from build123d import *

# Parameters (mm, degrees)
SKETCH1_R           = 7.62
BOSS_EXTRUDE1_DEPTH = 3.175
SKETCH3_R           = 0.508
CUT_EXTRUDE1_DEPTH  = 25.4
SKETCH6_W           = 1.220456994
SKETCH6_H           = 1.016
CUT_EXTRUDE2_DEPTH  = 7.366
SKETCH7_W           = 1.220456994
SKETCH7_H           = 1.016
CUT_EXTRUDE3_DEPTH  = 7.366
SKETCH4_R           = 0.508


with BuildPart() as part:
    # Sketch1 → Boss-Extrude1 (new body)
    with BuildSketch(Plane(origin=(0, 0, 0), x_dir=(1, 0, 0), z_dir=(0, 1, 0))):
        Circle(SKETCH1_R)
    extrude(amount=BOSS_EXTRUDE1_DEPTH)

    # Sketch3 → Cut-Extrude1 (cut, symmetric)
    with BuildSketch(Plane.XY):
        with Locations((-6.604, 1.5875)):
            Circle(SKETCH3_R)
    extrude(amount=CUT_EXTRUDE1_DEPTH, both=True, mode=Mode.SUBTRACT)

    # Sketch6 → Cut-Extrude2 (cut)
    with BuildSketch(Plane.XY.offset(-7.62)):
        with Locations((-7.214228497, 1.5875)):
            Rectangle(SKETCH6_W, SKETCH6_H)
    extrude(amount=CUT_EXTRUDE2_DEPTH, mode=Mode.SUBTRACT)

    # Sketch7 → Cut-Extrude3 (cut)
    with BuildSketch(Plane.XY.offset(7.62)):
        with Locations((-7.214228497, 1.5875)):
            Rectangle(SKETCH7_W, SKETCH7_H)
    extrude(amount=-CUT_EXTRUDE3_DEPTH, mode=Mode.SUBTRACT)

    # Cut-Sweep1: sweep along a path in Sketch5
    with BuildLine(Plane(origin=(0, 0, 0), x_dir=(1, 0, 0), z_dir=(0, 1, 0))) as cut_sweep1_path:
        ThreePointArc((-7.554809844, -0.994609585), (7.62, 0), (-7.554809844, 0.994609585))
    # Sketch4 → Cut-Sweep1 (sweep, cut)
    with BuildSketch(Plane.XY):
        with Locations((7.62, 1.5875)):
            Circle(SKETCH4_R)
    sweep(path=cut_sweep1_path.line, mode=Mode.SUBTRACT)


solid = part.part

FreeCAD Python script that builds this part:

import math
import FreeCAD as App
import Part
import Sketcher
Q = App.Units.Quantity

doc = App.newDocument("Part")
params = doc.addObject("Spreadsheet::Sheet", "Params")
for row, (alias, value) in enumerate([
    ("sketch1_diameter", "0.6 in"),
    ("pad1_length", "0.125 in"),
    ("sketch2_diameter", "0.04 in"),
    ("pocket1_length", "2 in"),
    ("sketch3_height", "0.04 in"),
    ("pocket2_length", "0.29 in"),
    ("sketch4_height", "0.04 in"),
    ("pocket3_length", "0.29 in"),
    ("sketch5_diameter", "0.04 in"),
    ("sketch6_radius", "0.3 in"),
], start=1):
    params.set(f"A{row}", alias)
    params.set(f"B{row}", "=" + value)
    params.setAlias(f"B{row}", alias)

body = doc.addObject("PartDesign::Body", "Body")

sketch1 = doc.addObject("Sketcher::SketchObject", "Sketch")
body.addObject(sketch1)
sketch1.AttachmentSupport = (doc.XZ_Plane, [""])
sketch1.MapMode = "FlatFace"
sketch1.addGeometry(Part.Circle(App.Vector(0, 0, 0), App.Vector(0, 0, 1), 8), False)
sketch1.addConstraint(Sketcher.Constraint("Coincident", 0, 3, -1, 1))
sketch1.addConstraint(Sketcher.Constraint("Diameter", 0, Q("0.6 in")))
sketch1.setExpression("Constraints[1]", "Params.sketch1_diameter")
pad1 = doc.addObject("PartDesign::Pad", "Pad")
body.addObject(pad1)
pad1.Profile = sketch1
pad1.setExpression("Length", "Params.pad1_length")
pad1.Reversed = True

sketch2 = doc.addObject("Sketcher::SketchObject", "Sketch001")
body.addObject(sketch2)
sketch2.AttachmentSupport = (doc.XY_Plane, [""])
sketch2.MapMode = "FlatFace"
sketch2.addGeometry(Part.Circle(App.Vector(-6.6, 1.6, 0), App.Vector(0, 0, 1), 0.5), False)
sketch2.addConstraint(Sketcher.Constraint("Diameter", 0, Q("0.04 in")))
sketch2.addConstraint(Sketcher.Constraint("DistanceX", 0, 3, -1, 1, Q("0.26 in")))
sketch2.addConstraint(Sketcher.Constraint("DistanceY", -1, 1, 0, 3, Q("0.0625 in")))
sketch2.setExpression("Constraints[0]", "Params.sketch2_diameter")
pocket1 = doc.addObject("PartDesign::Pocket", "Pocket")
body.addObject(pocket1)
pocket1.Profile = sketch2
pocket1.setExpression("Length", "Params.pocket1_length")
pocket1.Midplane = True

sketch3 = doc.addObject("Sketcher::SketchObject", "Sketch002")
body.addObject(sketch3)
sketch3.AttachmentSupport = (doc.XY_Plane, [""])
sketch3.MapMode = "FlatFace"
sketch3.AttachmentOffset = App.Placement(App.Vector(0, 0, -0.3 * 25.4), App.Rotation())
sketch3.addGeometry(Part.LineSegment(App.Vector(-7.8, 2.1, 0), App.Vector(-7.8, 1.1, 0)), False)
sketch3.addGeometry(Part.LineSegment(App.Vector(-7.8, 1.1, 0), App.Vector(-6.6, 1.1, 0)), False)
sketch3.addGeometry(Part.LineSegment(App.Vector(-6.6, 1.1, 0), App.Vector(-6.6, 2.1, 0)), False)
sketch3.addGeometry(Part.LineSegment(App.Vector(-6.6, 2.1, 0), App.Vector(-7.8, 2.1, 0)), False)
sketch3.addConstraint(Sketcher.Constraint("Coincident", 0, 2, 1, 1))
sketch3.addConstraint(Sketcher.Constraint("Coincident", 1, 2, 2, 1))
sketch3.addConstraint(Sketcher.Constraint("Coincident", 2, 2, 3, 1))
sketch3.addConstraint(Sketcher.Constraint("Coincident", 3, 2, 0, 1))
sketch3.addConstraint(Sketcher.Constraint("Vertical", 0))
sketch3.addConstraint(Sketcher.Constraint("Horizontal", 1))
sketch3.addConstraint(Sketcher.Constraint("Vertical", 2))
sketch3.addConstraint(Sketcher.Constraint("Horizontal", 3))
sketch3.addConstraint(Sketcher.Constraint("DistanceY", 0, 2, 0, 1, Q("0.04 in")))
sketch3.addConstraint(Sketcher.Constraint("DistanceX", 1, 2, -1, 1, Q("0.26 in")))
sketch3.addConstraint(Sketcher.Constraint("DistanceY", -1, 1, 0, 2, Q("0.0425 in")))
sketch3.addConstraint(Sketcher.Constraint("DistanceX", 1, 1, 1, 2, 1.220457))
sketch3.setExpression("Constraints[8]", "Params.sketch3_height")
pocket2 = doc.addObject("PartDesign::Pocket", "Pocket001")
body.addObject(pocket2)
pocket2.Profile = sketch3
pocket2.setExpression("Length", "Params.pocket2_length")
pocket2.Reversed = True

sketch4 = doc.addObject("Sketcher::SketchObject", "Sketch003")
body.addObject(sketch4)
sketch4.AttachmentSupport = (doc.XY_Plane, [""])
sketch4.MapMode = "FlatFace"
sketch4.AttachmentOffset = App.Placement(App.Vector(0, 0, 0.3 * 25.4), App.Rotation())
sketch4.addGeometry(Part.LineSegment(App.Vector(-7.8, 2.1, 0), App.Vector(-7.8, 1.1, 0)), False)
sketch4.addGeometry(Part.LineSegment(App.Vector(-7.8, 1.1, 0), App.Vector(-6.6, 1.1, 0)), False)
sketch4.addGeometry(Part.LineSegment(App.Vector(-6.6, 1.1, 0), App.Vector(-6.6, 2.1, 0)), False)
sketch4.addGeometry(Part.LineSegment(App.Vector(-6.6, 2.1, 0), App.Vector(-7.8, 2.1, 0)), False)
sketch4.addConstraint(Sketcher.Constraint("Coincident", 0, 2, 1, 1))
sketch4.addConstraint(Sketcher.Constraint("Coincident", 1, 2, 2, 1))
sketch4.addConstraint(Sketcher.Constraint("Coincident", 2, 2, 3, 1))
sketch4.addConstraint(Sketcher.Constraint("Coincident", 3, 2, 0, 1))
sketch4.addConstraint(Sketcher.Constraint("Vertical", 0))
sketch4.addConstraint(Sketcher.Constraint("Horizontal", 1))
sketch4.addConstraint(Sketcher.Constraint("Vertical", 2))
sketch4.addConstraint(Sketcher.Constraint("Horizontal", 3))
sketch4.addConstraint(Sketcher.Constraint("DistanceY", 0, 2, 0, 1, Q("0.04 in")))
sketch4.addConstraint(Sketcher.Constraint("DistanceX", 1, 2, -1, 1, Q("0.26 in")))
sketch4.addConstraint(Sketcher.Constraint("DistanceY", -1, 1, 0, 2, Q("0.0425 in")))
sketch4.addConstraint(Sketcher.Constraint("DistanceX", 1, 1, 1, 2, 1.220457))
sketch4.setExpression("Constraints[8]", "Params.sketch4_height")
pocket3 = doc.addObject("PartDesign::Pocket", "Pocket002")
body.addObject(pocket3)
pocket3.Profile = sketch4
pocket3.setExpression("Length", "Params.pocket3_length")

sketch5 = doc.addObject("Sketcher::SketchObject", "Sketch004")
body.addObject(sketch5)
sketch5.AttachmentSupport = (doc.XY_Plane, [""])
sketch5.MapMode = "FlatFace"
sketch5.addGeometry(Part.Circle(App.Vector(7.6, 1.6, 0), App.Vector(0, 0, 1), 0.5), False)
sketch5.addConstraint(Sketcher.Constraint("Diameter", 0, Q("0.04 in")))
sketch5.addConstraint(Sketcher.Constraint("DistanceX", -1, 1, 0, 3, Q("0.3 in")))
sketch5.addConstraint(Sketcher.Constraint("DistanceY", -1, 1, 0, 3, Q("0.0625 in")))
sketch5.setExpression("Constraints[0]", "Params.sketch5_diameter")

sketch6 = doc.addObject("Sketcher::SketchObject", "Sketch005")
body.addObject(sketch6)
sketch6.AttachmentSupport = (doc.XZ_Plane, [""])
sketch6.MapMode = "FlatFace"
sketch6.addGeometry(Part.ArcOfCircle(Part.Circle(App.Vector(0, 0, 0), App.Vector(0, 0, 1), 7.6), math.radians(-172), math.radians(172)), False)
sketch6.addConstraint(Sketcher.Constraint("Coincident", 0, 3, -1, 1))
sketch6.addConstraint(Sketcher.Constraint("Radius", 0, Q("0.3 in")))
sketch6.addConstraint(Sketcher.Constraint("DistanceX", 0, 1, -1, 1, 7.55481))
sketch6.addConstraint(Sketcher.Constraint("DistanceX", 0, 2, -1, 1, 7.55481))
sketch6.setExpression("Constraints[1]", "Params.sketch6_radius")
doc.recompute()

subtractivepipe = doc.addObject("PartDesign::SubtractivePipe", "SubtractivePipe")
body.addObject(subtractivepipe)
subtractivepipe.Profile = sketch5
subtractivepipe.Spine = (sketch6, ["Edge1"])

doc.recompute()
